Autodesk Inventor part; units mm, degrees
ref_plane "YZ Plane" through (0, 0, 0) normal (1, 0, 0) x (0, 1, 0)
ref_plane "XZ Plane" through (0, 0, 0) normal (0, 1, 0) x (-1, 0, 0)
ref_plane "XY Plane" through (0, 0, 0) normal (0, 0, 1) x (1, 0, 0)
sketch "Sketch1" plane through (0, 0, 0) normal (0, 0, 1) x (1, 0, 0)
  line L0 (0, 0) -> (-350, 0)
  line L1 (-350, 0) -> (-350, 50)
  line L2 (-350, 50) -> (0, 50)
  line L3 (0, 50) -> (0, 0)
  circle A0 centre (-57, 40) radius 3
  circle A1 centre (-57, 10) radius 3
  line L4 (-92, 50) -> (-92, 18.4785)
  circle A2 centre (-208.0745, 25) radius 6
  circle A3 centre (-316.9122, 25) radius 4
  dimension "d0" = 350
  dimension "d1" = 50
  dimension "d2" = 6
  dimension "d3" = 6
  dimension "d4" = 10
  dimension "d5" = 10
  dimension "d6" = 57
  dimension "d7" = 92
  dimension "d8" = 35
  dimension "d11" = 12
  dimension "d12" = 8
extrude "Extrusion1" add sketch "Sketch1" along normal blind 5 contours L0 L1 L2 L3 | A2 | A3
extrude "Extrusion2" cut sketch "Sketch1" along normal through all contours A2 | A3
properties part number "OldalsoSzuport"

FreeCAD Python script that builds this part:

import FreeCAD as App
import Part
import Sketcher

V = App.Vector
Q = App.Units.Quantity

doc = App.newDocument("Part")
body = doc.addObject("PartDesign::Body", "Body")

sketch1 = body.newObject("Sketcher::SketchObject", "Sketch")
sketch1.AttachmentSupport = (doc.getObject("XY_Plane"), [""])
sketch1.MapMode = "FlatFace"
sketch1.addGeometry([
    Part.LineSegment(V(-350, 0, 0), V(0, 0, 0)),
    Part.LineSegment(V(0, 0, 0), V(0, 50, 0)),
    Part.LineSegment(V(0, 50, 0), V(-350, 50, 0)),
    Part.LineSegment(V(-350, 50, 0), V(-350, 0, 0)),
    Part.Circle(V(-57, 10, 0), V(0, 0, 1), 3),
    Part.Circle(V(-57, 40, 0), V(0, 0, 1), 3),
], False)
sketch1.addConstraint([
    Sketcher.Constraint("Coincident", 0, 2, 1, 1),
    Sketcher.Constraint("Coincident", 1, 2, 2, 1),
    Sketcher.Constraint("Coincident", 2, 2, 3, 1),
    Sketcher.Constraint("Coincident", 3, 2, 0, 1),
    Sketcher.Constraint("Horizontal", 0),
    Sketcher.Constraint("Vertical", 1),
    Sketcher.Constraint("Horizontal", 2),
    Sketcher.Constraint("Vertical", 3),
    Sketcher.Constraint("Coincident", 0, 2, -1, 1),
    Sketcher.Constraint("Equal", 4, 5),
    Sketcher.Constraint("Vertical", 4, 3, 5, 3),
    Sketcher.Constraint("Diameter", 4, Q("6 mm")),
    Sketcher.Constraint("DistanceX", 0, 1, 0, 2, Q("350 mm")),
    Sketcher.Constraint("DistanceY", 1, 1, 1, 2, Q("50 mm")),
    Sketcher.Constraint("DistanceX", 4, 3, -1, 1, Q("57 mm")),
    Sketcher.Constraint("DistanceY", -1, 1, 4, 3, Q("10 mm")),
    Sketcher.Constraint("DistanceY", 5, 3, 1, 2, Q("10 mm")),
])
pad1 = body.newObject("PartDesign::Pad", "Pad")
pad1.Profile = sketch1
pad1.Length = 5

sketch2 = body.newObject("Sketcher::SketchObject", "Sketch001")
sketch2.AttachmentSupport = (doc.getObject("XY_Plane"), [""])
sketch2.MapMode = "FlatFace"
sketch2.addGeometry([
    Part.Circle(V(-208.1, 25, 0), V(0, 0, 1), 6),
    Part.Circle(V(-316.9, 25, 0), V(0, 0, 1), 4),
], False)
sketch2.addConstraint([
    Sketcher.Constraint("Horizontal", 0, 3, 1, 3),
    Sketcher.Constraint("Diameter", 0, Q("12 mm")),
    Sketcher.Constraint("Diameter", 1, Q("8 mm")),
    Sketcher.Constraint("DistanceY", -1, 1, 0, 3, Q("25 mm")),
    Sketcher.Constraint("DistanceX", 0, 3, -1, 1, Q("208.0745 mm")),
    Sketcher.Constraint("DistanceX", 1, 3, -1, 1, Q("316.9122 mm")),
])
pocket1 = body.newObject("PartDesign::Pocket", "Pocket")
pocket1.Profile = sketch2
pocket1.Type = "ThroughAll"
pocket1.Reversed = True

doc.recompute()
